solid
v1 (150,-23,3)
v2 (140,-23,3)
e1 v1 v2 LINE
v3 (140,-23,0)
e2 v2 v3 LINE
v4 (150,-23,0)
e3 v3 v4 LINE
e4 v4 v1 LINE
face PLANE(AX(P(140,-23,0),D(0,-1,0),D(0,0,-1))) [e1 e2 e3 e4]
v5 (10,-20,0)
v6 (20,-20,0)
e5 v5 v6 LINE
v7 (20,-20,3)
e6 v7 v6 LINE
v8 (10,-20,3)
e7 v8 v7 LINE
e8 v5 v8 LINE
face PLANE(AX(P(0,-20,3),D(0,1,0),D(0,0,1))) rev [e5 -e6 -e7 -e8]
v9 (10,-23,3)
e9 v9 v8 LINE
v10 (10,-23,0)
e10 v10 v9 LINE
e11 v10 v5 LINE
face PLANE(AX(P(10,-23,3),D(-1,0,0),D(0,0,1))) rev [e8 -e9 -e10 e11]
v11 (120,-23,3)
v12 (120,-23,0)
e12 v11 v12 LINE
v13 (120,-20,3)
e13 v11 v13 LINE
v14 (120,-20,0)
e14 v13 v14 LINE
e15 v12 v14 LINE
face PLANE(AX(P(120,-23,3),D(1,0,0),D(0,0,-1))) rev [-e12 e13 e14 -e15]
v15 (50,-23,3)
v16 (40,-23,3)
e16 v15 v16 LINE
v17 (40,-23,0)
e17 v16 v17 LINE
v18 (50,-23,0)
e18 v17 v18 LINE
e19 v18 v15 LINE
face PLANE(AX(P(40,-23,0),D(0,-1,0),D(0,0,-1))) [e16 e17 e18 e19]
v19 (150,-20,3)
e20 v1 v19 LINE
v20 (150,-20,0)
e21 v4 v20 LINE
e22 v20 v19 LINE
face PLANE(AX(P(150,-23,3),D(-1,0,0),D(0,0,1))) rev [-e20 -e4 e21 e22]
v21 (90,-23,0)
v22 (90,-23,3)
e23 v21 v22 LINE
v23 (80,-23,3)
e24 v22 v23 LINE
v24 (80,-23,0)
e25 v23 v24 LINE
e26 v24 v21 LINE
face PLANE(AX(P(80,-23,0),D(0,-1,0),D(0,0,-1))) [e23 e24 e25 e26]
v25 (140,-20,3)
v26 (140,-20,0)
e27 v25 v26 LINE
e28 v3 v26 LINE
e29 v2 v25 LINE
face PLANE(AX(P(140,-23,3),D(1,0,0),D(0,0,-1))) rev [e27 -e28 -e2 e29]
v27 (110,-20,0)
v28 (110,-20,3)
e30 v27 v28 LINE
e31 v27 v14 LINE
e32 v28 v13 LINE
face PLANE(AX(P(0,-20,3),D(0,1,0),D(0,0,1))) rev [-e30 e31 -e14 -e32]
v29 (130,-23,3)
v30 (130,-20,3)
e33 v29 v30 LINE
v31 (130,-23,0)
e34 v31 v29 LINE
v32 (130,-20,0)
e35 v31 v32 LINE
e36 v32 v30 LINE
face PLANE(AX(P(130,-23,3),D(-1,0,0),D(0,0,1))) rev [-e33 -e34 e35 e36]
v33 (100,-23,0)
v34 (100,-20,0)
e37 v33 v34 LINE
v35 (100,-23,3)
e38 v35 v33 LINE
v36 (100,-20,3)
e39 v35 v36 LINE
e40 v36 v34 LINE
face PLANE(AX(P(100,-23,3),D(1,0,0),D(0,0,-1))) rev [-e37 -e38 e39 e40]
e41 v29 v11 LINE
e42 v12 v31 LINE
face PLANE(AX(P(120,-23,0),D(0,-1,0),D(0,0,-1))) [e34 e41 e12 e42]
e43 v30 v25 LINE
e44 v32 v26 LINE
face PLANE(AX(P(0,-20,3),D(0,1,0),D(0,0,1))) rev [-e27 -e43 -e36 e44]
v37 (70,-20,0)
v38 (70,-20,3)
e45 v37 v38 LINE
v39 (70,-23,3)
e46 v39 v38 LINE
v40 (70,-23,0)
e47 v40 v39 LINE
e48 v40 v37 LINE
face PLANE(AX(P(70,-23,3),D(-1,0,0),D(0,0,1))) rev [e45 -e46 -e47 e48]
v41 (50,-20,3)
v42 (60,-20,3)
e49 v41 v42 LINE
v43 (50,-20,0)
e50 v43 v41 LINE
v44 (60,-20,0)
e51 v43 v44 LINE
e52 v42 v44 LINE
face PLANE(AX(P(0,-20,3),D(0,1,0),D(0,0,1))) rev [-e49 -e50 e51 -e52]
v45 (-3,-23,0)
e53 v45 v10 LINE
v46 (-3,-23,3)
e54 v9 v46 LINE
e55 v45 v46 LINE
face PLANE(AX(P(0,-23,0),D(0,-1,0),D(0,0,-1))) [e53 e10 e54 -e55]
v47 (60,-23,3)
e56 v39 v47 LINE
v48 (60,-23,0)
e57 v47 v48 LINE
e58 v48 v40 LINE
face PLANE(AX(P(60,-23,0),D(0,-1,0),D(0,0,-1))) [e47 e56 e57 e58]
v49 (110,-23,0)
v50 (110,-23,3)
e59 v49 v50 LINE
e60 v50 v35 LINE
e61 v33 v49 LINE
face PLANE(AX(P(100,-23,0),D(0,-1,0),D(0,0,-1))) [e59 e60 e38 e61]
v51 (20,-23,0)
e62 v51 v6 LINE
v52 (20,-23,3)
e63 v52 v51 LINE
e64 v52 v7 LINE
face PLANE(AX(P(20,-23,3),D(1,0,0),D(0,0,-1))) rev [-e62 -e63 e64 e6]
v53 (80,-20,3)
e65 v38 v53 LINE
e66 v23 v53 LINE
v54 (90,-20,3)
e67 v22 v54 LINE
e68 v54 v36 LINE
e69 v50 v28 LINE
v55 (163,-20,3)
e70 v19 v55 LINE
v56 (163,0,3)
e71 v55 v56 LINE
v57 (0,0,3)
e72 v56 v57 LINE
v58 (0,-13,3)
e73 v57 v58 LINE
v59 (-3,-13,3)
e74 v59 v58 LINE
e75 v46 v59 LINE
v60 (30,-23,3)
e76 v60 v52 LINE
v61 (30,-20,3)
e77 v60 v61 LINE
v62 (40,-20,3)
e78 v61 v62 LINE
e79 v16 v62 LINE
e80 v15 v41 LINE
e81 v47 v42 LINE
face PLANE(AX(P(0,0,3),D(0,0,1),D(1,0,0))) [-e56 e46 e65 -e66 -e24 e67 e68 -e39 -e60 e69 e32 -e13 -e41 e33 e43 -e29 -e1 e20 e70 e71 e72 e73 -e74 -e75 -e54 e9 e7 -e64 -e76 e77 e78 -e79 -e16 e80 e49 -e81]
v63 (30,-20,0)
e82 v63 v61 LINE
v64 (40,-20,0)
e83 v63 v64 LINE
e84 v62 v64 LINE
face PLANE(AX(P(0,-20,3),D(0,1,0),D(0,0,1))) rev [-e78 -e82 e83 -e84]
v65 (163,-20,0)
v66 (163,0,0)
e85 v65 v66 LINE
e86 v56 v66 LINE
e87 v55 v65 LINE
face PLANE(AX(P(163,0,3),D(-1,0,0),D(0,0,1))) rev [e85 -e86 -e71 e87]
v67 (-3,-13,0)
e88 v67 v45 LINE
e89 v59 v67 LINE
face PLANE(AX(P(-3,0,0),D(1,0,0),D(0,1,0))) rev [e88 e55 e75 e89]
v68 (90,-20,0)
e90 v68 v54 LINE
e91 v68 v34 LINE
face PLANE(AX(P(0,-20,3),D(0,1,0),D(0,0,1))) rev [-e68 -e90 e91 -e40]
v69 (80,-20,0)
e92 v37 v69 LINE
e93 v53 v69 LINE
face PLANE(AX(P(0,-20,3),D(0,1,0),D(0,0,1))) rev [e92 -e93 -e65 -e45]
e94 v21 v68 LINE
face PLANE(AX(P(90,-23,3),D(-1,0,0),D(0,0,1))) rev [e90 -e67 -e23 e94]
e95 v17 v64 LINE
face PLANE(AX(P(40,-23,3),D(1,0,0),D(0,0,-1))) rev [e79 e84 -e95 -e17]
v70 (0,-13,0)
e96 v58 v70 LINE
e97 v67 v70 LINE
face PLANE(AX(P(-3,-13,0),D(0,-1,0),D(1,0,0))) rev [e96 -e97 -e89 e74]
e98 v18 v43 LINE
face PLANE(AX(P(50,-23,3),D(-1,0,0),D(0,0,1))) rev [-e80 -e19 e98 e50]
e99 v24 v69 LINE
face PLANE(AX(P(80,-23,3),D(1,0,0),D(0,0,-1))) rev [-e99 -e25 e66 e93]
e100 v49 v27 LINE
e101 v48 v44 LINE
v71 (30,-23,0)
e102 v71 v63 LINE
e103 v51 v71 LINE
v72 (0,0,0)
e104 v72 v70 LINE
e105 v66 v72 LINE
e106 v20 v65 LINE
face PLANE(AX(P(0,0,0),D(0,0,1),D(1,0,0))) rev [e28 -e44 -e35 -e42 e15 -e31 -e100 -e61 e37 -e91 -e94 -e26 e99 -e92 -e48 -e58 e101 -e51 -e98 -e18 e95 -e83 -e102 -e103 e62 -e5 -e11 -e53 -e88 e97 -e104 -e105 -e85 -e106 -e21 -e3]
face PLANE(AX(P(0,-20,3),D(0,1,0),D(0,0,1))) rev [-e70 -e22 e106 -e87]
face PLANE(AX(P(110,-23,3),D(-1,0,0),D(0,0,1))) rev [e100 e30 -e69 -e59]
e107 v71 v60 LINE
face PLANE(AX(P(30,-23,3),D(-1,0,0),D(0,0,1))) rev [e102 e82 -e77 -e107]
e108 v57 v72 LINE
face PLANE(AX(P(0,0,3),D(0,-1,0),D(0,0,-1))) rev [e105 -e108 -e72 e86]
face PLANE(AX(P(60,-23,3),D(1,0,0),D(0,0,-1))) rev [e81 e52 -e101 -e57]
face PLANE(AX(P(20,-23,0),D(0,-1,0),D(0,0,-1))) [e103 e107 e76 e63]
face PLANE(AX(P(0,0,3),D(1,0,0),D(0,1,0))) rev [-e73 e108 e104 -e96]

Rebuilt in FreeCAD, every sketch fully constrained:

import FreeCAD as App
import Part
import Sketcher

V = App.Vector

doc = App.newDocument("Part")
body = doc.addObject("PartDesign::Body", "Body")

sketch1 = body.newObject("Sketcher::SketchObject", "Sketch")
sketch1.AttachmentSupport = (doc.getObject("XY_Plane"), [""])
sketch1.MapMode = "FlatFace"
sketch1.addGeometry(Part.LineSegment(V(0, 0, 0), V(0, -20, 0)), False)
sketch1.addGeometry(Part.LineSegment(V(0, -20, 0), V(163, -20, 0)), False)
sketch1.addGeometry(Part.LineSegment(V(163, -20, 0), V(163, 0, 0)), False)
sketch1.addGeometry(Part.LineSegment(V(163, 0, 0), V(0, 0, 0)), False)
sketch1.addConstraint(Sketcher.Constraint("Coincident", 0, 2, 1, 1))
sketch1.addConstraint(Sketcher.Constraint("Coincident", 1, 2, 2, 1))
sketch1.addConstraint(Sketcher.Constraint("Coincident", 2, 2, 3, 1))
sketch1.addConstraint(Sketcher.Constraint("Coincident", 3, 2, 0, 1))
sketch1.addConstraint(Sketcher.Constraint("Vertical", 0))
sketch1.addConstraint(Sketcher.Constraint("Horizontal", 1))
sketch1.addConstraint(Sketcher.Constraint("Vertical", 2))
sketch1.addConstraint(Sketcher.Constraint("Horizontal", 3))
sketch1.addConstraint(Sketcher.Constraint("Coincident", 3, 2, -1, 1))
sketch1.addConstraint(Sketcher.Constraint("DistanceX", 1, 1, 1, 2, 163.0))
sketch1.addConstraint(Sketcher.Constraint("DistanceY", 0, 2, 0, 1, 20.0))
pad1 = body.newObject("PartDesign::Pad", "Pad")
pad1.Profile = sketch1
pad1.Length = 3

sketch2 = body.newObject("Sketcher::SketchObject", "Sketch001")
sketch2.AttachmentSupport = (doc.getObject("XZ_Plane"), [""])
sketch2.MapMode = "FlatFace"
sketch2.AttachmentOffset = App.Placement(V(0, 0, 20), App.Rotation())
sketch2.addGeometry(Part.LineSegment(V(0, 3, 0), V(0, 0, 0)), False)
sketch2.addGeometry(Part.LineSegment(V(0, 0, 0), V(10, 0, 0)), False)
sketch2.addGeometry(Part.LineSegment(V(10, 0, 0), V(10, 3, 0)), False)
sketch2.addGeometry(Part.LineSegment(V(10, 3, 0), V(0, 3, 0)), False)
sketch2.addConstraint(Sketcher.Constraint("Coincident", 0, 2, 1, 1))
sketch2.addConstraint(Sketcher.Constraint("Coincident", 1, 2, 2, 1))
sketch2.addConstraint(Sketcher.Constraint("Coincident", 2, 2, 3, 1))
sketch2.addConstraint(Sketcher.Constraint("Coincident", 3, 2, 0, 1))
sketch2.addConstraint(Sketcher.Constraint("Vertical", 0))
sketch2.addConstraint(Sketcher.Constraint("Horizontal", 1))
sketch2.addConstraint(Sketcher.Constraint("Vertical", 2))
sketch2.addConstraint(Sketcher.Constraint("Horizontal", 3))
sketch2.addConstraint(Sketcher.Constraint("Coincident", 0, 2, -1, 1))
sketch2.addConstraint(Sketcher.Constraint("DistanceX", 1, 1, 1, 2, 10.0))
sketch2.addConstraint(Sketcher.Constraint("DistanceY", 0, 2, 0, 1, 3.0))
pad2 = body.newObject("PartDesign::Pad", "Pad001")
pad2.Profile = sketch2
pad2.Length = 3
doc.recompute()

linearpattern = body.newObject("PartDesign::LinearPattern", "LinearPattern")
linearpattern.Originals = [pad2]
linearpattern.Direction = (doc.getObject("X_Axis"), [""])
linearpattern.Mode = "offset"
linearpattern.Offset = 20
linearpattern.Occurrences = 8
body.Tip = linearpattern

sketch3 = body.newObject("Sketcher::SketchObject", "Sketch002")
sketch3.AttachmentSupport = (doc.getObject("YZ_Plane"), [""])
sketch3.MapMode = "FlatFace"
sketch3.addGeometry(Part.LineSegment(V(-13, 0, 0), V(-23, 0, 0)), False)
sketch3.addGeometry(Part.LineSegment(V(-23, 0, 0), V(-23, 3, 0)), False)
sketch3.addGeometry(Part.LineSegment(V(-23, 3, 0), V(-13, 3, 0)), False)
sketch3.addGeometry(Part.LineSegment(V(-13, 3, 0), V(-13, 0, 0)), False)
sketch3.addConstraint(Sketcher.Constraint("Coincident", 0, 2, 1, 1))
sketch3.addConstraint(Sketcher.Constraint("Coincident", 1, 2, 2, 1))
sketch3.addConstraint(Sketcher.Constraint("Coincident", 2, 2, 3, 1))
sketch3.addConstraint(Sketcher.Constraint("Coincident", 3, 2, 0, 1))
sketch3.addConstraint(Sketcher.Constraint("Horizontal", 0))
sketch3.addConstraint(Sketcher.Constraint("Vertical", 1))
sketch3.addConstraint(Sketcher.Constraint("Horizontal", 2))
sketch3.addConstraint(Sketcher.Constraint("Vertical", 3))
sketch3.addConstraint(Sketcher.Constraint("PointOnObject", 0, 2, -1))
sketch3.addConstraint(Sketcher.Constraint("DistanceX", 0, 2, 0, 1, 10.0))
sketch3.addConstraint(Sketcher.Constraint("DistanceY", 1, 1, 1, 2, 3.0))
sketch3.addConstraint(Sketcher.Constraint("DistanceX", 0, 2, -1, 1, 23.0))
pad3 = body.newObject("PartDesign::Pad", "Pad002")
pad3.Profile = sketch3
pad3.Length = 3
pad3.Reversed = True

doc.recompute()
